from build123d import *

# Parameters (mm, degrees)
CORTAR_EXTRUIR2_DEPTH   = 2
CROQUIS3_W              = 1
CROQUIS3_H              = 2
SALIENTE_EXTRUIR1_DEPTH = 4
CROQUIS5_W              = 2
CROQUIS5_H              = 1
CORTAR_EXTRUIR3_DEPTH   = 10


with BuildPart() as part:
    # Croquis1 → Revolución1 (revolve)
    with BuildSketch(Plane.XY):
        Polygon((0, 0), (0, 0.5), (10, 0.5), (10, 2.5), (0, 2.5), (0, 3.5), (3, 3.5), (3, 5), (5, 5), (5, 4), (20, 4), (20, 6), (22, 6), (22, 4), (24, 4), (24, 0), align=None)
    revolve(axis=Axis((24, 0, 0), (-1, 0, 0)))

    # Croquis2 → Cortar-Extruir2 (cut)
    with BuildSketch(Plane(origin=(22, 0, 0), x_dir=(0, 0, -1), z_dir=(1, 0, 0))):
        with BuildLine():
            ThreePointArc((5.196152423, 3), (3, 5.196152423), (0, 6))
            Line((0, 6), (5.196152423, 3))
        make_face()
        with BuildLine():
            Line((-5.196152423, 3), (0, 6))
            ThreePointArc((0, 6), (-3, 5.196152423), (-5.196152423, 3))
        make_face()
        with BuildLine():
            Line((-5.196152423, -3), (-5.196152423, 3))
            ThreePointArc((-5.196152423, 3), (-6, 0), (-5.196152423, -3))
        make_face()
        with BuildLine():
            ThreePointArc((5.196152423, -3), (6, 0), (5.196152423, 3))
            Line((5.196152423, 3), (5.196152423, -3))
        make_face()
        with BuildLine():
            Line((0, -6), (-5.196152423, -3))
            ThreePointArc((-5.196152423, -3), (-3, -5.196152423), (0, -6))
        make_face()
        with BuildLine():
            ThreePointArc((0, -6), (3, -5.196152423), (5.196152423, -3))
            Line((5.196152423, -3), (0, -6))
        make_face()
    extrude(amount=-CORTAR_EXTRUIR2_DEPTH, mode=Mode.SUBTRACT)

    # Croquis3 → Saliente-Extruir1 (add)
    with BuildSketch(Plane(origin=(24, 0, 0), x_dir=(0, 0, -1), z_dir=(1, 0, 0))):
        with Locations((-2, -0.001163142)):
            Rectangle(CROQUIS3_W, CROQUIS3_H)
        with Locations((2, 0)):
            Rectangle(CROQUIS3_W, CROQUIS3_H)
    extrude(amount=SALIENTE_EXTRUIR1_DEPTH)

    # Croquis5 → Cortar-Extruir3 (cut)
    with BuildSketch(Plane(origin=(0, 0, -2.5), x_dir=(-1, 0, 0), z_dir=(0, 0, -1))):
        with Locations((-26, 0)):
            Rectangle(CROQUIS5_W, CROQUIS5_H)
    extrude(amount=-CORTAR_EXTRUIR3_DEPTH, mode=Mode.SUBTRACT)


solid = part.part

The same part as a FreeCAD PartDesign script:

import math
import FreeCAD as App
import Part
import Sketcher
from FreeCAD import Vector

doc = App.newDocument("Part")
body = doc.addObject("PartDesign::Body", "Body")

sketch1 = doc.addObject("Sketcher::SketchObject", "Sketch")
body.addObject(sketch1)
sketch1.AttachmentSupport = (doc.XY_Plane, [""])
sketch1.MapMode = "FlatFace"
sketch1.addGeometry([
    Part.LineSegment(Vector(0, 0.5, 0), Vector(0, 0, 0)),
    Part.LineSegment(Vector(0, 0, 0), Vector(24, 0, 0)),
    Part.LineSegment(Vector(24, 0, 0), Vector(24, 4, 0)),
    Part.LineSegment(Vector(24, 4, 0), Vector(22, 4, 0)),
    Part.LineSegment(Vector(22, 4, 0), Vector(22, 6, 0)),
    Part.LineSegment(Vector(22, 6, 0), Vector(20, 6, 0)),
    Part.LineSegment(Vector(20, 6, 0), Vector(20, 4, 0)),
    Part.LineSegment(Vector(20, 4, 0), Vector(5, 4, 0)),
    Part.LineSegment(Vector(5, 4, 0), Vector(5, 5, 0)),
    Part.LineSegment(Vector(5, 5, 0), Vector(3, 5, 0)),
    Part.LineSegment(Vector(3, 5, 0), Vector(3, 3.5, 0)),
    Part.LineSegment(Vector(3, 3.5, 0), Vector(0, 3.5, 0)),
    Part.LineSegment(Vector(0, 3.5, 0), Vector(0, 2.5, 0)),
    Part.LineSegment(Vector(0, 2.5, 0), Vector(10, 2.5, 0)),
    Part.LineSegment(Vector(10, 2.5, 0), Vector(10, 0.5, 0)),
    Part.LineSegment(Vector(10, 0.5, 0), Vector(0, 0.5, 0)),
], False)
sketch1.addConstraint([
    Sketcher.Constraint("Coincident", 0, 2, 1, 1),
    Sketcher.Constraint("Coincident", 1, 2, 2, 1),
    Sketcher.Constraint("Coincident", 2, 2, 3, 1),
    Sketcher.Constraint("Coincident", 3, 2, 4, 1),
    Sketcher.Constraint("Coincident", 4, 2, 5, 1),
    Sketcher.Constraint("Coincident", 5, 2, 6, 1),
    Sketcher.Constraint("Coincident", 6, 2, 7, 1),
    Sketcher.Constraint("Coincident", 7, 2, 8, 1),
    Sketcher.Constraint("Coincident", 8, 2, 9, 1),
    Sketcher.Constraint("Coincident", 9, 2, 10, 1),
    Sketcher.Constraint("Coincident", 10, 2, 11, 1),
    Sketcher.Constraint("Coincident", 11, 2, 12, 1),
    Sketcher.Constraint("Coincident", 12, 2, 13, 1),
    Sketcher.Constraint("Coincident", 13, 2, 14, 1),
    Sketcher.Constraint("Coincident", 14, 2, 15, 1),
    Sketcher.Constraint("Coincident", 15, 2, 0, 1),
    Sketcher.Constraint("Vertical", 0),
    Sketcher.Constraint("Horizontal", 1),
    Sketcher.Constraint("Vertical", 2),
    Sketcher.Constraint("Horizontal", 3),
    Sketcher.Constraint("Vertical", 4),
    Sketcher.Constraint("Horizontal", 5),
    Sketcher.Constraint("Vertical", 6),
    Sketcher.Constraint("Horizontal", 7),
    Sketcher.Constraint("Vertical", 8),
    Sketcher.Constraint("Horizontal", 9),
    Sketcher.Constraint("Vertical", 10),
    Sketcher.Constraint("Horizontal", 11),
    Sketcher.Constraint("Vertical", 12),
    Sketcher.Constraint("Horizontal", 13),
    Sketcher.Constraint("Vertical", 14),
    Sketcher.Constraint("Horizontal", 15),
    Sketcher.Constraint("Coincident", 0, 2, -1, 1),
    Sketcher.Constraint("PointOnObject", 11, 2, -2),
    Sketcher.Constraint("Horizontal", 3, 2, 6, 2),
    Sketcher.Constraint("Equal", 3, 5),
    Sketcher.Constraint("Equal", 5, 9),
    Sketcher.Constraint("Equal", 9, 4),
    Sketcher.Constraint("Equal", 8, 12),
    Sketcher.Constraint("Equal", 6, 14),
    Sketcher.Constraint("DistanceX", 1, 1, 1, 2, 24.0),
    Sketcher.Constraint("DistanceX", 3, 2, 3, 1, 2.0),
    Sketcher.Constraint("DistanceX", 7, 2, 7, 1, 15.0),
    Sketcher.Constraint("DistanceX", 13, 1, 13, 2, 10.0),
    Sketcher.Constraint("DistanceY", 2, 1, 2, 2, 4.0),
    Sketcher.Constraint("DistanceY", 8, 1, 8, 2, 1.0),
    Sketcher.Constraint("DistanceY", 0, 2, 0, 1, 0.5),
])
revolution = doc.addObject("PartDesign::Revolution", "Revolution")
body.addObject(revolution)
revolution.Profile = sketch1
revolution.ReferenceAxis = (sketch1, ["H_Axis"])
revolution.Angle = 360

sketch2 = doc.addObject("Sketcher::SketchObject", "Sketch001")
body.addObject(sketch2)
sketch2.AttachmentSupport = (doc.YZ_Plane, [""])
sketch2.MapMode = "FlatFace"
sketch2.AttachmentOffset = App.Placement(Vector(0, 0, 22), App.Rotation())
sketch2.addGeometry([
    Part.ArcOfCircle(Part.Circle(Vector(0, 0, 0), Vector(0, 0, 1), 6), math.radians(-60), math.radians(0)),
    Part.LineSegment(Vector(6, 0, 0), Vector(3, -5, 0)),
    Part.LineSegment(Vector(3, 5, 0), Vector(6, 0, 0)),
    Part.ArcOfCircle(Part.Circle(Vector(0, 0, 0), Vector(0, 0, 1), 6), math.radians(0), math.radians(60)),
    Part.LineSegment(Vector(-3, 5, 0), Vector(3, 5, 0)),
    Part.ArcOfCircle(Part.Circle(Vector(0, 0, 0), Vector(0, 0, 1), 6), math.radians(60), math.radians(120)),
    Part.ArcOfCircle(Part.Circle(Vector(0, 0, 0), Vector(0, 0, 1), 6), math.radians(-120), math.radians(-60)),
    Part.LineSegment(Vector(3, -5, 0), Vector(-3, -5, 0)),
    Part.LineSegment(Vector(-6, 0, 0), Vector(-3, 5, 0)),
    Part.ArcOfCircle(Part.Circle(Vector(0, 0, 0), Vector(0, 0, 1), 6), math.radians(120), math.radians(180)),
    Part.ArcOfCircle(Part.Circle(Vector(0, 0, 0), Vector(0, 0, 1), 6), math.radians(180), math.radians(240)),
    Part.LineSegment(Vector(-3, -5, 0), Vector(-6, 0, 0)),
], False)
sketch2.addConstraint([
    Sketcher.Constraint("Coincident", 0, 1, 1, 2),
    Sketcher.Constraint("Coincident", 1, 1, 0, 2),
    Sketcher.Constraint("Coincident", 2, 1, 3, 2),
    Sketcher.Constraint("Coincident", 3, 1, 2, 2),
    Sketcher.Constraint("Coincident", 4, 1, 5, 2),
    Sketcher.Constraint("Coincident", 5, 1, 4, 2),
    Sketcher.Constraint("Coincident", 6, 1, 7, 2),
    Sketcher.Constraint("Coincident", 7, 1, 6, 2),
    Sketcher.Constraint("Coincident", 8, 1, 9, 2),
    Sketcher.Constraint("Coincident", 9, 1, 8, 2),
    Sketcher.Constraint("Coincident", 10, 1, 11, 2),
    Sketcher.Constraint("Coincident", 11, 1, 10, 2),
    Sketcher.Constraint("Horizontal", 4),
    Sketcher.Constraint("Horizontal", 7),
    Sketcher.Constraint("Coincident", 0, 3, -1, 1),
    Sketcher.Constraint("Coincident", 3, 3, -1, 1),
    Sketcher.Constraint("Coincident", 5, 3, -1, 1),
    Sketcher.Constraint("Coincident", 6, 3, -1, 1),
    Sketcher.Constraint("Coincident", 9, 3, -1, 1),
    Sketcher.Constraint("Coincident", 10, 3, -1, 1),
    Sketcher.Constraint("Coincident", 3, 1, 1, 1),
    Sketcher.Constraint("Coincident", 5, 1, 2, 1),
    Sketcher.Constraint("Coincident", 7, 1, 0, 1),
    Sketcher.Constraint("Coincident", 9, 1, 4, 1),
    Sketcher.Constraint("Coincident", 10, 1, 8, 1),
    Sketcher.Constraint("PointOnObject", 1, 1, -1),
    Sketcher.Constraint("PointOnObject", 8, 1, -1),
    Sketcher.Constraint("Parallel", 1, 8),
    Sketcher.Constraint("Parallel", 2, 11),
    Sketcher.Constraint("Radius", 0, 6.0),
    Sketcher.Constraint("DistanceX", 4, 1, 4, 2, 6.0),
])
pocket1 = doc.addObject("PartDesign::Pocket", "Pocket")
body.addObject(pocket1)
pocket1.Profile = sketch2
pocket1.Length = 2

sketch3 = doc.addObject("Sketcher::SketchObject", "Sketch002")
body.addObject(sketch3)
sketch3.AttachmentSupport = (doc.YZ_Plane, [""])
sketch3.MapMode = "FlatFace"
sketch3.AttachmentOffset = App.Placement(Vector(0, 0, 24), App.Rotation())
sketch3.addGeometry([
    Part.LineSegment(Vector(1, 2.5, 0), Vector(-1, 2.5, 0)),
    Part.LineSegment(Vector(-1, 2.5, 0), Vector(-1, 1.5, 0)),
    Part.LineSegment(Vector(-1, 1.5, 0), Vector(1, 1.5, 0)),
    Part.LineSegment(Vector(1, 1.5, 0), Vector(1, 2.5, 0)),
    Part.LineSegment(Vector(1, -1.5, 0), Vector(-1, -1.5, 0)),
    Part.LineSegment(Vector(-1, -1.5, 0), Vector(-1, -2.5, 0)),
    Part.LineSegment(Vector(-1, -2.5, 0), Vector(1, -2.5, 0)),
    Part.LineSegment(Vector(1, -2.5, 0), Vector(1, -1.5, 0)),
], False)
sketch3.addConstraint([
    Sketcher.Constraint("Coincident", 0, 2, 1, 1),
    Sketcher.Constraint("Coincident", 1, 2, 2, 1),
    Sketcher.Constraint("Coincident", 2, 2, 3, 1),
    Sketcher.Constraint("Coincident", 3, 2, 0, 1),
    Sketcher.Constraint("Coincident", 4, 2, 5, 1),
    Sketcher.Constraint("Coincident", 5, 2, 6, 1),
    Sketcher.Constraint("Coincident", 6, 2, 7, 1),
    Sketcher.Constraint("Coincident", 7, 2, 4, 1),
    Sketcher.Constraint("Horizontal", 0),
    Sketcher.Constraint("Vertical", 1),
    Sketcher.Constraint("Horizontal", 2),
    Sketcher.Constraint("Vertical", 3),
    Sketcher.Constraint("Horizontal", 4),
    Sketcher.Constraint("Vertical", 5),
    Sketcher.Constraint("Horizontal", 6),
    Sketcher.Constraint("Vertical", 7),
    Sketcher.Constraint("Equal", 2, 4),
    Sketcher.Constraint("Equal", 3, 5),
    Sketcher.Constraint("DistanceX", 0, 2, 0, 1, 2.0),
    Sketcher.Constraint("DistanceY", 1, 2, 1, 1, 1.0),
    Sketcher.Constraint("DistanceX", 4, 2, -1, 1, 1.0),
    Sketcher.Constraint("DistanceY", 4, 2, 1, 2, 3.0),
    Sketcher.Constraint("DistanceY", -1, 1, 0, 2, 2.5),
    Sketcher.Constraint("DistanceX", 0, 2, -1, 1, 1.001163),
])
pad1 = doc.addObject("PartDesign::Pad", "Pad")
body.addObject(pad1)
pad1.Profile = sketch3
pad1.Length = 4

sketch4 = doc.addObject("Sketcher::SketchObject", "Sketch003")
body.addObject(sketch4)
sketch4.AttachmentSupport = (doc.XY_Plane, [""])
sketch4.MapMode = "FlatFace"
sketch4.AttachmentOffset = App.Placement(Vector(0, 0, -2.5), App.Rotation())
sketch4.addGeometry([
    Part.LineSegment(Vector(27, 0.5, 0), Vector(27, -0.5, 0)),
    Part.LineSegment(Vector(27, -0.5, 0), Vector(25, -0.5, 0)),
    Part.LineSegment(Vector(25, -0.5, 0), Vector(25, 0.5, 0)),
    Part.LineSegment(Vector(25, 0.5, 0), Vector(27, 0.5, 0)),
], False)
sketch4.addConstraint([
    Sketcher.Constraint("Coincident", 0, 2, 1, 1),
    Sketcher.Constraint("Coincident", 1, 2, 2, 1),
    Sketcher.Constraint("Coincident", 2, 2, 3, 1),
    Sketcher.Constraint("Coincident", 3, 2, 0, 1),
    Sketcher.Constraint("Vertical", 0),
    Sketcher.Constraint("Horizontal", 1),
    Sketcher.Constraint("Vertical", 2),
    Sketcher.Constraint("Horizontal", 3),
    Sketcher.Constraint("DistanceX", 1, 2, 1, 1, 2.0),
    Sketcher.Constraint("DistanceY", 0, 2, 0, 1, 1.0),
    Sketcher.Constraint("DistanceX", -1, 1, 0, 2, 27.0),
    Sketcher.Constraint("DistanceY", 0, 2, -1, 1, 0.5),
])
pocket2 = doc.addObject("PartDesign::Pocket", "Pocket001")
body.addObject(pocket2)
pocket2.Profile = sketch4
pocket2.Length = 10
pocket2.Reversed = True

doc.recompute()
